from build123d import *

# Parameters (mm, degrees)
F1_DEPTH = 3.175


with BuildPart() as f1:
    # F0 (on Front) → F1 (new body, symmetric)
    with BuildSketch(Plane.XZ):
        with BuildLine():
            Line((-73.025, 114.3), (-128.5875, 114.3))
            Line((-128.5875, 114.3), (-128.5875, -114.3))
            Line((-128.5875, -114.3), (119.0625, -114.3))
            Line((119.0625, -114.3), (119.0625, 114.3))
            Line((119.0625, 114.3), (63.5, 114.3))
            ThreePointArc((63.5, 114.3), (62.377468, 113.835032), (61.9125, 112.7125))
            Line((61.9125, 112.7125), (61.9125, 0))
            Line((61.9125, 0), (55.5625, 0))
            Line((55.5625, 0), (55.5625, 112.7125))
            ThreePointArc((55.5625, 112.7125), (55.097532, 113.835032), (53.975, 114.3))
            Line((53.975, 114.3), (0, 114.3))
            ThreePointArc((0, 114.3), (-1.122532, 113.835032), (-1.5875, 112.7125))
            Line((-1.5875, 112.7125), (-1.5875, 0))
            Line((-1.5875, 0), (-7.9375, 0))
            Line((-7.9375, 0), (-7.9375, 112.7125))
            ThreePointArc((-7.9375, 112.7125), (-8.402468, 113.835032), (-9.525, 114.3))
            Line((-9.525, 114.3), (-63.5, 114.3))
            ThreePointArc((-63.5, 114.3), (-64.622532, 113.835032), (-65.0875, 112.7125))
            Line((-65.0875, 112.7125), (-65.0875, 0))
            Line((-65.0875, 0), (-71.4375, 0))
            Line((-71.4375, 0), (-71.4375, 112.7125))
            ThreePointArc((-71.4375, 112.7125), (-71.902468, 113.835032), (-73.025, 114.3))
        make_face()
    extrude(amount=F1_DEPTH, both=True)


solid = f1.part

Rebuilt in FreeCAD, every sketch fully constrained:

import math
import FreeCAD as App
import Part
import Sketcher

V = App.Vector
Q = App.Units.Quantity

doc = App.newDocument("Part")
body = doc.addObject("PartDesign::Body", "Body")

# Sketch on XZ plane
sketch1 = body.newObject("Sketcher::SketchObject", "Sketch")
sketch1.AttachmentSupport = (doc.getObject("XZ_Plane"), [""])
sketch1.MapMode = "FlatFace"
sketch1.addGeometry([
    Part.LineSegment(V(-73, 114.3, 0), V(-128.6, 114.3, 0)),  # 0
    Part.LineSegment(V(-128.6, 114.3, 0), V(-128.6, -114.3, 0)),  # 1
    Part.LineSegment(V(-128.6, -114.3, 0), V(119.1, -114.3, 0)),  # 2
    Part.LineSegment(V(119.1, -114.3, 0), V(119.1, 114.3, 0)),  # 3
    Part.LineSegment(V(119.1, 114.3, 0), V(63.5, 114.3, 0)),  # 4
    Part.ArcOfCircle(Part.Circle(V(63.5, 112.7, 0), V(0, 0, 1), 1.6), math.radians(90), math.radians(180)),  # 5
    Part.LineSegment(V(61.9, 112.7, 0), V(61.9, 0, 0)),  # 6
    Part.LineSegment(V(61.9, 0, 0), V(55.6, 0, 0)),  # 7
    Part.LineSegment(V(55.6, 0, 0), V(55.6, 112.7, 0)),  # 8
    Part.ArcOfCircle(Part.Circle(V(54, 112.7, 0), V(0, 0, 1), 1.6), math.radians(0), math.radians(90)),  # 9
    Part.LineSegment(V(54, 114.3, 0), V(0, 114.3, 0)),  # 10
    Part.ArcOfCircle(Part.Circle(V(0, 112.7, 0), V(0, 0, 1), 1.6), math.radians(90), math.radians(180)),  # 11
    Part.LineSegment(V(-1.6, 112.7, 0), V(-1.6, 0, 0)),  # 12
    Part.LineSegment(V(-1.6, 0, 0), V(-7.9, 0, 0)),  # 13
    Part.LineSegment(V(-7.9, 0, 0), V(-7.9, 112.7, 0)),  # 14
    Part.ArcOfCircle(Part.Circle(V(-9.5, 112.7, 0), V(0, 0, 1), 1.6), math.radians(0), math.radians(90)),  # 15
    Part.LineSegment(V(-9.5, 114.3, 0), V(-63.5, 114.3, 0)),  # 16
    Part.ArcOfCircle(Part.Circle(V(-63.5, 112.7, 0), V(0, 0, 1), 1.6), math.radians(90), math.radians(180)),  # 17
    Part.LineSegment(V(-65.1, 112.7, 0), V(-65.1, 0, 0)),  # 18
    Part.LineSegment(V(-65.1, 0, 0), V(-71.4, 0, 0)),  # 19
    Part.LineSegment(V(-71.4, 0, 0), V(-71.4, 112.7, 0)),  # 20
    Part.ArcOfCircle(Part.Circle(V(-73, 112.7, 0), V(0, 0, 1), 1.6), math.radians(0), math.radians(90)),  # 21
], False)
sketch1.addConstraint([
    Sketcher.Constraint("Coincident", 0, 2, 1, 1),
    Sketcher.Constraint("Coincident", 1, 2, 2, 1),
    Sketcher.Constraint("Coincident", 2, 2, 3, 1),
    Sketcher.Constraint("Coincident", 3, 2, 4, 1),
    Sketcher.Constraint("Tangent", 4, 2, 5, 1),
    Sketcher.Constraint("Tangent", 5, 2, 6, 1),
    Sketcher.Constraint("Coincident", 6, 2, 7, 1),
    Sketcher.Constraint("Coincident", 7, 2, 8, 1),
    Sketcher.Constraint("Tangent", 8, 2, 9, 1),
    Sketcher.Constraint("Tangent", 9, 2, 10, 1),
    Sketcher.Constraint("Tangent", 10, 2, 11, 1),
    Sketcher.Constraint("Tangent", 11, 2, 12, 1),
    Sketcher.Constraint("Coincident", 12, 2, 13, 1),
    Sketcher.Constraint("Coincident", 13, 2, 14, 1),
    Sketcher.Constraint("Tangent", 14, 2, 15, 1),
    Sketcher.Constraint("Tangent", 15, 2, 16, 1),
    Sketcher.Constraint("Tangent", 16, 2, 17, 1),
    Sketcher.Constraint("Tangent", 17, 2, 18, 1),
    Sketcher.Constraint("Coincident", 18, 2, 19, 1),
    Sketcher.Constraint("Coincident", 19, 2, 20, 1),
    Sketcher.Constraint("Tangent", 20, 2, 21, 1),
    Sketcher.Constraint("Tangent", 21, 2, 0, 1),
    Sketcher.Constraint("Horizontal", 0),
    Sketcher.Constraint("Vertical", 1),
    Sketcher.Constraint("Horizontal", 2),
    Sketcher.Constraint("Vertical", 3),
    Sketcher.Constraint("Horizontal", 4),
    Sketcher.Constraint("Vertical", 6),
    Sketcher.Constraint("Horizontal", 7),
    Sketcher.Constraint("Vertical", 8),
    Sketcher.Constraint("Horizontal", 10),
    Sketcher.Constraint("Vertical", 12),
    Sketcher.Constraint("Horizontal", 13),
    Sketcher.Constraint("Vertical", 14),
    Sketcher.Constraint("Horizontal", 16),
    Sketcher.Constraint("Vertical", 18),
    Sketcher.Constraint("Horizontal", 19),
    Sketcher.Constraint("Vertical", 20),
    Sketcher.Constraint("Equal", 5, 9),
    Sketcher.Constraint("Equal", 9, 11),
    Sketcher.Constraint("Equal", 11, 15),
    Sketcher.Constraint("Equal", 15, 17),
    Sketcher.Constraint("Equal", 17, 21),
    Sketcher.Constraint("Symmetric", 5, 3, 17, 3, -2),
    Sketcher.Constraint("PointOnObject", 11, 3, -2),
    Sketcher.Constraint("PointOnObject", 6, 2, -1),
    Sketcher.Constraint("PointOnObject", 12, 2, -1),
    Sketcher.Constraint("PointOnObject", 18, 2, -1),
    Sketcher.Constraint("Horizontal", 5, 3, 9, 3),
    Sketcher.Constraint("Horizontal", 17, 3, 21, 3),
    Sketcher.Constraint("Equal", 0, 4),
    Sketcher.Constraint("Equal", 7, 13),
    Sketcher.Constraint("Equal", 13, 19),
    Sketcher.Constraint("DistanceY", 1, 2, 1, 1, Q("9 in")),
    Sketcher.Constraint("Radius", 5, Q("0.0625 in")),
    Sketcher.Constraint("DistanceX", 17, 3, 5, 3, Q("5 in")),
    Sketcher.Constraint("DistanceX", 2, 1, 2, 2, Q("9.75 in")),
    Sketcher.Constraint("DistanceX", 7, 2, 7, 1, Q("0.25 in")),
    Sketcher.Constraint("DistanceY", -1, 1, 0, 2, Q("4.5 in")),
])
pad1 = body.newObject("PartDesign::Pad", "Pad")
pad1.Profile = sketch1
pad1.Length = Q("0.25 in")
pad1.Midplane = True

doc.recompute()
